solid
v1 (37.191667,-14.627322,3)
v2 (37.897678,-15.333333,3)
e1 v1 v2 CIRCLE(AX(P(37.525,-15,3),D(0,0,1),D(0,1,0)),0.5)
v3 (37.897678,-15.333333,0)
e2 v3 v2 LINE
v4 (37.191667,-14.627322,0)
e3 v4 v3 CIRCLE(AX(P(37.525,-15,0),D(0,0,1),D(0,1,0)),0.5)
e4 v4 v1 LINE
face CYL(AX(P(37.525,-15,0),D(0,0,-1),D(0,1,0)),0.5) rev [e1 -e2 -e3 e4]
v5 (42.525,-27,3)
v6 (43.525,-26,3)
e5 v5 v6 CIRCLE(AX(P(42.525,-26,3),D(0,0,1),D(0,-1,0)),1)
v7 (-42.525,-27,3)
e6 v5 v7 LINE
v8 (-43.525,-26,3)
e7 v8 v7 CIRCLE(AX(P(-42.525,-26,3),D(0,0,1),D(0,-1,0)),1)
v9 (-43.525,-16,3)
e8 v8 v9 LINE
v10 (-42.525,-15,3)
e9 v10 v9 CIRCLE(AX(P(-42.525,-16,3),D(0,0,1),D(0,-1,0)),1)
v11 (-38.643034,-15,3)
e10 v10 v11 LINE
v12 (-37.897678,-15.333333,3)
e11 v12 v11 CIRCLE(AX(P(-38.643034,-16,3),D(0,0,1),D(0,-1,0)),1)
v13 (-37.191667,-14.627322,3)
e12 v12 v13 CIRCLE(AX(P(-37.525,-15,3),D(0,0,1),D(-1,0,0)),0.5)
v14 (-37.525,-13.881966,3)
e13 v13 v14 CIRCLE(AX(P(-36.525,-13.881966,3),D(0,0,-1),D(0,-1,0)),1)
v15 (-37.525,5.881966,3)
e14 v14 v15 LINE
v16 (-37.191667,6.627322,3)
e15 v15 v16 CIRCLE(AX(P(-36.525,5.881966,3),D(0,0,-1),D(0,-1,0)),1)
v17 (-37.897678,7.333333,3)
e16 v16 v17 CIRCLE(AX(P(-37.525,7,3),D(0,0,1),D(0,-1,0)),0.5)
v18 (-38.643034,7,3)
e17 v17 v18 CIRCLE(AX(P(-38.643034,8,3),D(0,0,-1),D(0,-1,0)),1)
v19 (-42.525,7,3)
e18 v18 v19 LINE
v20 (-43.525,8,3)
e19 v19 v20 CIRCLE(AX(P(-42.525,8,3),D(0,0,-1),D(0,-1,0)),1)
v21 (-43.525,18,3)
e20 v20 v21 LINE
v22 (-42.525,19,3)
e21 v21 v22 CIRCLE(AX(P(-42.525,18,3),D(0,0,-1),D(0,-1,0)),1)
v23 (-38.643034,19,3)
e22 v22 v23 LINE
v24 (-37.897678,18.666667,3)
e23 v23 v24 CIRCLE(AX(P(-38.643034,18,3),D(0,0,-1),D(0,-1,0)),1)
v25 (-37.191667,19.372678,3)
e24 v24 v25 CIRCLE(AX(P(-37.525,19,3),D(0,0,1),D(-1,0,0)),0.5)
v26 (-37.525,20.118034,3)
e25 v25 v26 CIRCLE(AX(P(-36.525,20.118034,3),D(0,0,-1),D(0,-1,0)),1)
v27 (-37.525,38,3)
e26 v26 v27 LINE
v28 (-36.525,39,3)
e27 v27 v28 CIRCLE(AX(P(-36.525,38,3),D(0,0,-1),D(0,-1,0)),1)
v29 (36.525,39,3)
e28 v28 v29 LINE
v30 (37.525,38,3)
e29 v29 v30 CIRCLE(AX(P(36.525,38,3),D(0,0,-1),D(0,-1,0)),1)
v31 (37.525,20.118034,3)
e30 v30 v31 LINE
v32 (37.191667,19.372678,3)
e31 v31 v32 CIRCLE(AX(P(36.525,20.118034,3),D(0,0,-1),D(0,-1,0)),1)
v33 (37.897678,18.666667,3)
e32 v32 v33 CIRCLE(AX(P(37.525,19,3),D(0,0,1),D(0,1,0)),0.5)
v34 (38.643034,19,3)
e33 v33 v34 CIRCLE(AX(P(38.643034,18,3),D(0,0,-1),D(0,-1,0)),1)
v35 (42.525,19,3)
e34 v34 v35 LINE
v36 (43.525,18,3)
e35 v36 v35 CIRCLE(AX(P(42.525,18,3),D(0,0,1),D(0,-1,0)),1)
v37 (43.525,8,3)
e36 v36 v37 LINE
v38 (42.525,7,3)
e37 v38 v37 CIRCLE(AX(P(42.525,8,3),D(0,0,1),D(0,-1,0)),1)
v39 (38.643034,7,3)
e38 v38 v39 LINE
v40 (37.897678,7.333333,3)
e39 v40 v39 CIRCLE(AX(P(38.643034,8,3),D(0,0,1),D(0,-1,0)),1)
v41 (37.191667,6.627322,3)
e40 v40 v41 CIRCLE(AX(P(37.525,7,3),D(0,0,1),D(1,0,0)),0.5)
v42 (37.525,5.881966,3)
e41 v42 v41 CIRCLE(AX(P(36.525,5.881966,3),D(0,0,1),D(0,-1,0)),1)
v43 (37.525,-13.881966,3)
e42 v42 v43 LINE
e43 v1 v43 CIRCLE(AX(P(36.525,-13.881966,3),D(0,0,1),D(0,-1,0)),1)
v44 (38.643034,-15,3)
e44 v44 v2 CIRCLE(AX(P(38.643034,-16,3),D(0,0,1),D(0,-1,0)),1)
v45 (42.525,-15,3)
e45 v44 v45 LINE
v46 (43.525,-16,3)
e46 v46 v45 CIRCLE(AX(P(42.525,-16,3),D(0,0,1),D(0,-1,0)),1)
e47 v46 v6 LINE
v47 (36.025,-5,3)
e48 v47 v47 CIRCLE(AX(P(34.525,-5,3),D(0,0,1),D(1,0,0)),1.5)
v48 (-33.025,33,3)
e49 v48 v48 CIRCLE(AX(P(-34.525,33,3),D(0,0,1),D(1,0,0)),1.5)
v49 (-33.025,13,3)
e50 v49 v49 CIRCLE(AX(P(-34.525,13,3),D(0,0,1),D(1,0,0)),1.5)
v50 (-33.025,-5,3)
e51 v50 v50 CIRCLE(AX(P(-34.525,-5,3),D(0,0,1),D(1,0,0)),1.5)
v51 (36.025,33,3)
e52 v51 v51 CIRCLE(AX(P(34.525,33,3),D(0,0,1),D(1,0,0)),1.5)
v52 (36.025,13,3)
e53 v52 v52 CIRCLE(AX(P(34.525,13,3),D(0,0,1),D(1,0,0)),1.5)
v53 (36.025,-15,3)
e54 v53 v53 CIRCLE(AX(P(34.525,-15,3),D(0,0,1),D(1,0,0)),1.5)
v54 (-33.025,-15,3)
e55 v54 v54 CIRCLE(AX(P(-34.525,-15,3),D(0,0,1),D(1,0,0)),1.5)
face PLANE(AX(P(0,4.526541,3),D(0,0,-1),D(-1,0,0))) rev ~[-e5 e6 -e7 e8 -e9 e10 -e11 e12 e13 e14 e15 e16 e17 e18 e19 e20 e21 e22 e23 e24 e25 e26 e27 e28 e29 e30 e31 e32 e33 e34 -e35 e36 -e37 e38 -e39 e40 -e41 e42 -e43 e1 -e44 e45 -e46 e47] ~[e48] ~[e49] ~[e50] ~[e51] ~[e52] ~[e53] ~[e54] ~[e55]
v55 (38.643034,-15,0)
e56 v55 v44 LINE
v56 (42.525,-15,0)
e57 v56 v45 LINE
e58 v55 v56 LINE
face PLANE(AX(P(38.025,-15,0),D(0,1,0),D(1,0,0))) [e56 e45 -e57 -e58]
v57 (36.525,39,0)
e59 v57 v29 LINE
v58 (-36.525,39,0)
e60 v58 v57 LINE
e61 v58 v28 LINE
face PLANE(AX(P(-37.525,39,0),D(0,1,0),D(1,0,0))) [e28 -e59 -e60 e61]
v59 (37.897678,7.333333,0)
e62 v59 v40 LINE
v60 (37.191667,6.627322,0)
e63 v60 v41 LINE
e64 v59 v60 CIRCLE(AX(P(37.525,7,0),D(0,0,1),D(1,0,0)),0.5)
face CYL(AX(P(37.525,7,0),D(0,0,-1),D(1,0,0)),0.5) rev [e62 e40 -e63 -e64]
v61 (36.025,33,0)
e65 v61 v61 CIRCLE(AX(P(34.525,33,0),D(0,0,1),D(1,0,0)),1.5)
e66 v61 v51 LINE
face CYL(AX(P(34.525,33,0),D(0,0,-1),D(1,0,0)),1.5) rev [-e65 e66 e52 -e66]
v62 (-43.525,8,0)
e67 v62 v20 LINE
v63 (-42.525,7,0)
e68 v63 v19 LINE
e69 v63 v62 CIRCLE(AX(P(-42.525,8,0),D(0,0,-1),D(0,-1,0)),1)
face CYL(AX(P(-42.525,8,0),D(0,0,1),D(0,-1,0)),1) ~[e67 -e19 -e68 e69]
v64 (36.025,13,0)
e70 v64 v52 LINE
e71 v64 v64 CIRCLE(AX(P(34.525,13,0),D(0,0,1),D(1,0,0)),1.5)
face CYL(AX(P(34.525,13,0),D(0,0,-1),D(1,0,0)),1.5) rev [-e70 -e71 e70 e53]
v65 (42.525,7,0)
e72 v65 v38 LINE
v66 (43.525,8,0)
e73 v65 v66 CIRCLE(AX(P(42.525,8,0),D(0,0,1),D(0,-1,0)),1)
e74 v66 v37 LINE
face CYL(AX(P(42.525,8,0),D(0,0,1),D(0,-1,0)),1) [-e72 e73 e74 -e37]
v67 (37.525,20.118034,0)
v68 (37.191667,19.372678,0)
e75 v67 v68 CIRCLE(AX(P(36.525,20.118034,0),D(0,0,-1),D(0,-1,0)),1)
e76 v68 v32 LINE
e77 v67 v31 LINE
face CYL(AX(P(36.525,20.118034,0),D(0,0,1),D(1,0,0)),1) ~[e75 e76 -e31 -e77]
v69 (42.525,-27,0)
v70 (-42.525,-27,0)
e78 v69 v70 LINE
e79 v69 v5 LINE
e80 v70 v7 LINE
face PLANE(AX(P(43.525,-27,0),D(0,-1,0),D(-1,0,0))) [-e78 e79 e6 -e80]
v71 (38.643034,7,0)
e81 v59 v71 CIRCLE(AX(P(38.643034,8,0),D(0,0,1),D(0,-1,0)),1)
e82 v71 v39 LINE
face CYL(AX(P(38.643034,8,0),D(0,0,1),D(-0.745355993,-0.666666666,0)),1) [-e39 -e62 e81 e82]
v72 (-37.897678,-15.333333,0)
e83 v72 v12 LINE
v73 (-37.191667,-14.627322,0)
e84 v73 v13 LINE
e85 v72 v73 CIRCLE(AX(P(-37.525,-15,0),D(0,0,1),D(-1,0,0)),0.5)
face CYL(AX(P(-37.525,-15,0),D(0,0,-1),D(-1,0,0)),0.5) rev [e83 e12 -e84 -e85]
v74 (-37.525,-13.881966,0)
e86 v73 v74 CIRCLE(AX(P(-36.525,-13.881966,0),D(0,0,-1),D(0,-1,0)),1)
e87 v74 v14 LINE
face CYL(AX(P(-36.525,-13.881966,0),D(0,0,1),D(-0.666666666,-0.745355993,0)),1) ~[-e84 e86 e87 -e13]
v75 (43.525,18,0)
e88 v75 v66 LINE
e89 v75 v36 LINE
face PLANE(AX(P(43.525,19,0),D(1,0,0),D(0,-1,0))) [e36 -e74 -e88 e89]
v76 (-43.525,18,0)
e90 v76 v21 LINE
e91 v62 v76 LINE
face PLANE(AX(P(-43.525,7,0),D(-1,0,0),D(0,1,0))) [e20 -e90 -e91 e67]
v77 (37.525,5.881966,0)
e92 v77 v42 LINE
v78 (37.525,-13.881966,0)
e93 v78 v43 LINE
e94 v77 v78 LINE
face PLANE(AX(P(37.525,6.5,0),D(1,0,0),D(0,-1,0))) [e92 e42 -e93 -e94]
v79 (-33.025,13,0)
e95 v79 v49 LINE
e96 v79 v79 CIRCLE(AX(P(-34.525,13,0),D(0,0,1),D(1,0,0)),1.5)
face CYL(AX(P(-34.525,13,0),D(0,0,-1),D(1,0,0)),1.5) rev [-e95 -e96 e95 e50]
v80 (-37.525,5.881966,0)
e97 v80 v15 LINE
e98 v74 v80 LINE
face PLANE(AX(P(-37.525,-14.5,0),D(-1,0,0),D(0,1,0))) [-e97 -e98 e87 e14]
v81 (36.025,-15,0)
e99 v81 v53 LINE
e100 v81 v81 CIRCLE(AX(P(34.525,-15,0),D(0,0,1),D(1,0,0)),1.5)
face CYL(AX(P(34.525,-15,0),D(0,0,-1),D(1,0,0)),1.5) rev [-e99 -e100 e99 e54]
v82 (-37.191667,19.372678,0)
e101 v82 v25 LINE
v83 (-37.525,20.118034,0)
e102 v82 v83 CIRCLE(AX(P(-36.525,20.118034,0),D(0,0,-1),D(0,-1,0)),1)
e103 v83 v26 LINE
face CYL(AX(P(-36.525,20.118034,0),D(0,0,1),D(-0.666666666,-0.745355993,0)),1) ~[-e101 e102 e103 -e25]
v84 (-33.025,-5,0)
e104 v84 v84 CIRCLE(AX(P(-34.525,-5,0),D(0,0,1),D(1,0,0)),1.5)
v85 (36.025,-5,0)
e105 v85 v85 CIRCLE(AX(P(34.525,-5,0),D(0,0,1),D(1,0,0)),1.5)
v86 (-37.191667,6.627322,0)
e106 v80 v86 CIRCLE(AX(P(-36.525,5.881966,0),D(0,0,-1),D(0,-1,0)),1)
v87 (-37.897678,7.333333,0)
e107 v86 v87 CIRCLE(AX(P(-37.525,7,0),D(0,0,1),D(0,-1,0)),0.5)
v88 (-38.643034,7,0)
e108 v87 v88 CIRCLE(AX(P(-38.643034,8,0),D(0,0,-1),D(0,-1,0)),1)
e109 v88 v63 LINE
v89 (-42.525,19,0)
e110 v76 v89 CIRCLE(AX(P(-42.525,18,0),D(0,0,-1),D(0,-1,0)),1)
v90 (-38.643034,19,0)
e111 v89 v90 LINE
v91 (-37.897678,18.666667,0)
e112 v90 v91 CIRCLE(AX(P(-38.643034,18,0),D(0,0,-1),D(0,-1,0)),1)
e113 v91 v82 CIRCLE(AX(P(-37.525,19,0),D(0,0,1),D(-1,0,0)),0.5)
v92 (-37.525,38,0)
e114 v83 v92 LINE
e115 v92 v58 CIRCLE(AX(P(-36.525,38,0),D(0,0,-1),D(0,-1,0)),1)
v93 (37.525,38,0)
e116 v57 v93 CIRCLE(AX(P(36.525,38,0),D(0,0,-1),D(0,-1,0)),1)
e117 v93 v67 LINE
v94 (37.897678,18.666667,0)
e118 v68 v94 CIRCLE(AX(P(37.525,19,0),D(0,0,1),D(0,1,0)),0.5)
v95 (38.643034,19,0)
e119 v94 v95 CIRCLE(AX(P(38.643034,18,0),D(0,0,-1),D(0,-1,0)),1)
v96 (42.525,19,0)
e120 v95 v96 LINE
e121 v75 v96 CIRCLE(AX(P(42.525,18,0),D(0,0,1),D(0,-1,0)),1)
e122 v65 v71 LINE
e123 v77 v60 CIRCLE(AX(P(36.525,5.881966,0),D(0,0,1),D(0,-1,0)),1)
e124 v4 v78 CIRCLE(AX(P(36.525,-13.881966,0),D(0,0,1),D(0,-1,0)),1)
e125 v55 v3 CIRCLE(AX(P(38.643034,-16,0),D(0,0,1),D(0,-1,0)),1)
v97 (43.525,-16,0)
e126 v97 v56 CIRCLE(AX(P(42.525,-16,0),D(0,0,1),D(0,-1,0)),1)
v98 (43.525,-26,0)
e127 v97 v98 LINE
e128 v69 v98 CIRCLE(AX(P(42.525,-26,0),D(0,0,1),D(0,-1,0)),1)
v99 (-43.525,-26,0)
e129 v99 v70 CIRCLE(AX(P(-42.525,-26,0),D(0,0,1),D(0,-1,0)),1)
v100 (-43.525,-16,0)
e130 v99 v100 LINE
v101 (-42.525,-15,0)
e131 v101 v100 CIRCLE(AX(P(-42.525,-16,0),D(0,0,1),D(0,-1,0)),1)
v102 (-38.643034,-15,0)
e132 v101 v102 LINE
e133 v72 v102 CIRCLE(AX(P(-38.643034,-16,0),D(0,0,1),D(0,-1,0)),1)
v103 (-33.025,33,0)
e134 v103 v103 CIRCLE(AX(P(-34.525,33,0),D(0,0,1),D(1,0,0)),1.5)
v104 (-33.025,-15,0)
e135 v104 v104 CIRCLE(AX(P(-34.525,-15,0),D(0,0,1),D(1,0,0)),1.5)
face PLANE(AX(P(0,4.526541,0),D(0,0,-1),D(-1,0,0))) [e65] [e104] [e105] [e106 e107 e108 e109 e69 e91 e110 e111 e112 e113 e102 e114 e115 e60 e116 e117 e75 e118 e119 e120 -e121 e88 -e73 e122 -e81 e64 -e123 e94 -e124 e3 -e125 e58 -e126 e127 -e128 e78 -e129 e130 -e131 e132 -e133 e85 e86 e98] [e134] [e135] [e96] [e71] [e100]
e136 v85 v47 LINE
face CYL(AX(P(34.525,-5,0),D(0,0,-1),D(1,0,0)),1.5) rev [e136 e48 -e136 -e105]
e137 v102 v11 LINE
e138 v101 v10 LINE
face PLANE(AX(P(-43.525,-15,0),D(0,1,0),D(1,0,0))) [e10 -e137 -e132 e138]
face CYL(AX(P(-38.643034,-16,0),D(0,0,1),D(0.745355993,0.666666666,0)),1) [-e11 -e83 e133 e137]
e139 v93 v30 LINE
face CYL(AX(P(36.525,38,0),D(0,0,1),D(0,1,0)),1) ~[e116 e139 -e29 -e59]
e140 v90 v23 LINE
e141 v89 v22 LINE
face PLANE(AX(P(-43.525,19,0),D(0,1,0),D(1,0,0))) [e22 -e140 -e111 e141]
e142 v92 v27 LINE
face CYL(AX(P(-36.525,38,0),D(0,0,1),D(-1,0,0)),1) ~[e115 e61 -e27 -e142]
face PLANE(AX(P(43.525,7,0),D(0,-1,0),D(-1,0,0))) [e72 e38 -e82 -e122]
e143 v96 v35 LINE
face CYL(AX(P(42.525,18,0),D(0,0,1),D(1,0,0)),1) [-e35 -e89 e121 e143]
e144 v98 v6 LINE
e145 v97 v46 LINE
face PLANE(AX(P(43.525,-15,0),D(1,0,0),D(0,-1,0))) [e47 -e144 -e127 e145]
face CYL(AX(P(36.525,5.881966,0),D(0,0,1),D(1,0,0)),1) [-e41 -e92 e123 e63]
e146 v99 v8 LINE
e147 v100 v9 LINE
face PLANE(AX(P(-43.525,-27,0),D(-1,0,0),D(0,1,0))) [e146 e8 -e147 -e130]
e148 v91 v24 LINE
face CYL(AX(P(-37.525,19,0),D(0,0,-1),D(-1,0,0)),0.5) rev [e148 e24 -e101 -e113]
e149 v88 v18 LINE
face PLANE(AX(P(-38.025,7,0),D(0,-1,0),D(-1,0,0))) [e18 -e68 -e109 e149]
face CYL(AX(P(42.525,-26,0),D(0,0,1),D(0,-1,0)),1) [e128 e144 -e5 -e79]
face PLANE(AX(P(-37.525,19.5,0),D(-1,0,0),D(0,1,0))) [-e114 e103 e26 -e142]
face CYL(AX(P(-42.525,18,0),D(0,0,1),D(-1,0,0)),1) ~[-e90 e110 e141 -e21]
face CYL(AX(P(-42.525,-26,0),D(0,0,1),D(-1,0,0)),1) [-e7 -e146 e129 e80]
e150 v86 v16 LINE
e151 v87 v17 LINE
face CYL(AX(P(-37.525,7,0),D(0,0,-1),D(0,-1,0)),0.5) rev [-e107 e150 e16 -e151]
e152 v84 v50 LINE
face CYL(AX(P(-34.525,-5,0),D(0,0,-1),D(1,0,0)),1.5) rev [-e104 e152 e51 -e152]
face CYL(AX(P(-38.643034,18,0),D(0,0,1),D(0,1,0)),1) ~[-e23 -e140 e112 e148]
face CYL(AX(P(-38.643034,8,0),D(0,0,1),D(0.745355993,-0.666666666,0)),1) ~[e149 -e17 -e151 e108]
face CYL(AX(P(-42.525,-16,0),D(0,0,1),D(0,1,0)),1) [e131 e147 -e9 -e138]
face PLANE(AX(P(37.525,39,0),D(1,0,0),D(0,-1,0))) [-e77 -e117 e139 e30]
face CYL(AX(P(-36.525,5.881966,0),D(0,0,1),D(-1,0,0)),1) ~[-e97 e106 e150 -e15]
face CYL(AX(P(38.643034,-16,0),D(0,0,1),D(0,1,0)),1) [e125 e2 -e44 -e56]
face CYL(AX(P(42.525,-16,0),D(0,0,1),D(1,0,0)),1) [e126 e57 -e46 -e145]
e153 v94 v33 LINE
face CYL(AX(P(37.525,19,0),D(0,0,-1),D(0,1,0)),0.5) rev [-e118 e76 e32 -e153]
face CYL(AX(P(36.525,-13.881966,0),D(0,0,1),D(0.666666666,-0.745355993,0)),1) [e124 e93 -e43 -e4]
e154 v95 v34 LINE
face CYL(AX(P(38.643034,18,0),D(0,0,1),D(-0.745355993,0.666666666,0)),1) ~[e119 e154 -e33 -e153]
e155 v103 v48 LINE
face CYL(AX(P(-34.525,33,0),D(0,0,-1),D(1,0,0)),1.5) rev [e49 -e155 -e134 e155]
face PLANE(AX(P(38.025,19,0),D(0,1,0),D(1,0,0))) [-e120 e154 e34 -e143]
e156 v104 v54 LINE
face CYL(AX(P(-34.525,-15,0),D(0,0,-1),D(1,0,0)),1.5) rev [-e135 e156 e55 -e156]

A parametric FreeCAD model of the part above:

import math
import FreeCAD as App
import Part
import Sketcher
Q = App.Units.Quantity


def edges_at(feature, points):
    """Names of the edges that pass closest to the given points."""
    edges = feature.Shape.Edges
    near = lambda p: min(range(len(edges)), key=lambda i: edges[i].distToShape(Part.Vertex(*p))[0])
    return sorted({f"Edge{near(p) + 1}" for p in points})

doc = App.newDocument("Part")
body = doc.addObject("PartDesign::Body", "Body")

sketch1 = doc.addObject("Sketcher::SketchObject", "Sketch")
body.addObject(sketch1)
sketch1.AttachmentSupport = (doc.XY_Plane, [""])
sketch1.MapMode = "FlatFace"
sketch1.addGeometry([
    Part.ArcOfCircle(Part.Circle(App.Vector(-37.5, -15, 0), App.Vector(0, 0, 1), 0.5), math.radians(180), math.radians(450)),
    Part.LineSegment(App.Vector(-38, -15, 0), App.Vector(-43.5, -15, 0)),
    Part.LineSegment(App.Vector(-43.5, -15, 0), App.Vector(-43.5, -27, 0)),
    Part.LineSegment(App.Vector(-43.5, -27, 0), App.Vector(43.5, -27, 0)),
    Part.LineSegment(App.Vector(43.5, -27, 0), App.Vector(43.5, -15, 0)),
    Part.LineSegment(App.Vector(43.5, -15, 0), App.Vector(38, -15, 0)),
    Part.ArcOfCircle(Part.Circle(App.Vector(37.5, -15, 0), App.Vector(0, 0, 1), 0.5), math.radians(90), math.radians(360)),
    Part.LineSegment(App.Vector(37.5, -14.5, 0), App.Vector(37.5, 6.5, 0)),
    Part.ArcOfCircle(Part.Circle(App.Vector(37.5, 7, 0), App.Vector(0, 0, 1), 0.5), math.radians(0), math.radians(270)),
    Part.LineSegment(App.Vector(38, 7, 0), App.Vector(43.5, 7, 0)),
    Part.LineSegment(App.Vector(43.5, 7, 0), App.Vector(43.5, 19, 0)),
    Part.LineSegment(App.Vector(43.5, 19, 0), App.Vector(38, 19, 0)),
    Part.ArcOfCircle(Part.Circle(App.Vector(37.5, 19, 0), App.Vector(0, 0, 1), 0.5), math.radians(90), math.radians(360)),
    Part.LineSegment(App.Vector(37.5, 19.5, 0), App.Vector(37.5, 39, 0)),
    Part.LineSegment(App.Vector(37.5, 39, 0), App.Vector(-37.5, 39, 0)),
    Part.LineSegment(App.Vector(-37.5, 39, 0), App.Vector(-37.5, 19.5, 0)),
    Part.ArcOfCircle(Part.Circle(App.Vector(-37.5, 19, 0), App.Vector(0, 0, 1), 0.5), math.radians(180), math.radians(450)),
    Part.LineSegment(App.Vector(-38, 19, 0), App.Vector(-43.5, 19, 0)),
    Part.LineSegment(App.Vector(-43.5, 19, 0), App.Vector(-43.5, 7, 0)),
    Part.LineSegment(App.Vector(-43.5, 7, 0), App.Vector(-38, 7, 0)),
    Part.ArcOfCircle(Part.Circle(App.Vector(-37.5, 7, 0), App.Vector(0, 0, 1), 0.5), math.radians(-90), math.radians(180)),
    Part.LineSegment(App.Vector(-37.5, 6.5, 0), App.Vector(-37.5, -14.5, 0)),
    Part.Circle(App.Vector(34.5, -15, 0), App.Vector(0, 0, 1), 1.5),
    Part.Circle(App.Vector(34.5, -5, 0), App.Vector(0, 0, 1), 1.5),
    Part.Circle(App.Vector(-34.5, -15, 0), App.Vector(0, 0, 1), 1.5),
    Part.Circle(App.Vector(-34.5, -5, 0), App.Vector(0, 0, 1), 1.5),
    Part.Circle(App.Vector(34.5, 13, 0), App.Vector(0, 0, 1), 1.5),
    Part.Circle(App.Vector(34.5, 33, 0), App.Vector(0, 0, 1), 1.5),
    Part.Circle(App.Vector(-34.5, 13, 0), App.Vector(0, 0, 1), 1.5),
    Part.Circle(App.Vector(-34.5, 33, 0), App.Vector(0, 0, 1), 1.5),
], False)
sketch1.addConstraint([
    Sketcher.Constraint("Coincident", 0, 1, 1, 1),
    Sketcher.Constraint("Coincident", 1, 2, 2, 1),
    Sketcher.Constraint("Coincident", 2, 2, 3, 1),
    Sketcher.Constraint("Coincident", 3, 2, 4, 1),
    Sketcher.Constraint("Coincident", 4, 2, 5, 1),
    Sketcher.Constraint("Coincident", 5, 2, 6, 2),
    Sketcher.Constraint("Coincident", 6, 1, 7, 1),
    Sketcher.Constraint("Coincident", 7, 2, 8, 2),
    Sketcher.Constraint("Coincident", 8, 1, 9, 1),
    Sketcher.Constraint("Coincident", 9, 2, 10, 1),
    Sketcher.Constraint("Coincident", 10, 2, 11, 1),
    Sketcher.Constraint("Coincident", 11, 2, 12, 2),
    Sketcher.Constraint("Coincident", 12, 1, 13, 1),
    Sketcher.Constraint("Coincident", 13, 2, 14, 1),
    Sketcher.Constraint("Coincident", 14, 2, 15, 1),
    Sketcher.Constraint("Coincident", 15, 2, 16, 2),
    Sketcher.Constraint("Coincident", 16, 1, 17, 1),
    Sketcher.Constraint("Coincident", 17, 2, 18, 1),
    Sketcher.Constraint("Coincident", 18, 2, 19, 1),
    Sketcher.Constraint("Coincident", 19, 2, 20, 2),
    Sketcher.Constraint("Coincident", 20, 1, 21, 1),
    Sketcher.Constraint("Coincident", 21, 2, 0, 2),
    Sketcher.Constraint("Horizontal", 1),
    Sketcher.Constraint("Vertical", 2),
    Sketcher.Constraint("Horizontal", 3),
    Sketcher.Constraint("Vertical", 4),
    Sketcher.Constraint("Horizontal", 5),
    Sketcher.Constraint("Vertical", 7),
    Sketcher.Constraint("Horizontal", 9),
    Sketcher.Constraint("Vertical", 10),
    Sketcher.Constraint("Horizontal", 11),
    Sketcher.Constraint("Vertical", 13),
    Sketcher.Constraint("Horizontal", 14),
    Sketcher.Constraint("Vertical", 15),
    Sketcher.Constraint("Horizontal", 17),
    Sketcher.Constraint("Vertical", 18),
    Sketcher.Constraint("Horizontal", 19),
    Sketcher.Constraint("Vertical", 21),
    Sketcher.Constraint("Equal", 0, 6),
    Sketcher.Constraint("Equal", 6, 8),
    Sketcher.Constraint("Equal", 8, 12),
    Sketcher.Constraint("Equal", 12, 16),
    Sketcher.Constraint("Equal", 16, 20),
    Sketcher.Constraint("Equal", 22, 23),
    Sketcher.Constraint("Equal", 23, 24),
    Sketcher.Constraint("Equal", 24, 25),
    Sketcher.Constraint("Equal", 25, 26),
    Sketcher.Constraint("Equal", 26, 27),
    Sketcher.Constraint("Equal", 27, 28),
    Sketcher.Constraint("Equal", 28, 29),
    Sketcher.Constraint("Symmetric", 0, 3, 6, 3, -2),
    Sketcher.Constraint("Symmetric", 12, 3, 16, 3, -2),
    Sketcher.Constraint("Symmetric", 8, 3, 20, 3, -2),
    Sketcher.Constraint("Symmetric", 22, 3, 24, 3, -2),
    Sketcher.Constraint("Symmetric", 23, 3, 25, 3, -2),
    Sketcher.Constraint("Symmetric", 26, 3, 28, 3, -2),
    Sketcher.Constraint("Symmetric", 27, 3, 29, 3, -2),
    Sketcher.Constraint("Symmetric", 1, 2, 4, 2, -2),
    Sketcher.Constraint("Symmetric", 10, 2, 17, 2, -2),
    Sketcher.Constraint("Horizontal", 6, 3, 22, 3),
    Sketcher.Constraint("Horizontal", 24, 3, 0, 1),
    Sketcher.Constraint("Horizontal", 20, 3, 8, 1),
    Sketcher.Constraint("Horizontal", 16, 3, 10, 2),
    Sketcher.Constraint("Horizontal", 9, 2, 18, 2),
    Sketcher.Constraint("Vertical", 6, 3, 8, 3),
    Sketcher.Constraint("Vertical", 8, 3, 12, 3),
    Sketcher.Constraint("Vertical", 22, 3, 23, 3),
    Sketcher.Constraint("Vertical", 23, 3, 26, 3),
    Sketcher.Constraint("Vertical", 26, 3, 27, 3),
    Sketcher.Constraint("Vertical", 12, 3, 6, 1),
    Sketcher.Constraint("Vertical", 4, 2, 9, 2),
    Sketcher.Constraint("Vertical", 7, 2, 12, 1),
    Sketcher.Constraint("Vertical", 20, 3, 14, 2),
    Sketcher.Constraint("Vertical", 15, 2, 20, 1),
    Sketcher.Constraint("Equal", 4, 10),
    Sketcher.Constraint("Diameter", 22, Q("3 mm")),
    Sketcher.Constraint("Radius", 0, Q("0.5 mm")),
    Sketcher.Constraint("DistanceY", 2, 2, 2, 1, Q("12 mm")),
    Sketcher.Constraint("DistanceY", 7, 1, 7, 2, Q("21 mm")),
    Sketcher.Constraint("DistanceX", 1, 2, 1, 1, Q("5.5 mm")),
    Sketcher.Constraint("DistanceY", 13, 1, 13, 2, Q("19.5 mm")),
    Sketcher.Constraint("DistanceY", 0, 3, -1, 1, Q("15 mm")),
    Sketcher.Constraint("DistanceY", 23, 3, -1, 1, Q("5 mm")),
    Sketcher.Constraint("DistanceY", -1, 1, 26, 3, Q("13 mm")),
    Sketcher.Constraint("DistanceY", -1, 1, 27, 3, Q("33 mm")),
    Sketcher.Constraint("DistanceX", 22, 3, 6, 3, Q("3 mm")),
    Sketcher.Constraint("DistanceX", 3, 1, 3, 2, Q("87.05 mm")),
])
pad1 = doc.addObject("PartDesign::Pad", "Pad")
body.addObject(pad1)
pad1.Profile = sketch1
pad1.Length = 3
doc.recompute()

fillet = doc.addObject("PartDesign::Fillet", "Fillet")
body.addObject(fillet)
fillet.Base = (pad1, edges_at(pad1, [
    (-37.525, -14.5, 1.5),
    (-37.525, 6.5, 1.5),
    (-38.025, 7, 1.5),
    (-43.525, 7, 1.5),
    (-43.525, 19, 1.5),
    (-38.025, 19, 1.5),
    (-37.525, 19.5, 1.5),
    (-37.525, 39, 1.5),
    (37.525, 39, 1.5),
    (37.525, 19.5, 1.5),
    (38.025, 19, 1.5),
    (43.525, 19, 1.5),
    (43.525, 7, 1.5),
    (38.025, 7, 1.5),
    (37.525, 6.5, 1.5),
    (37.525, -14.5, 1.5),
    (38.025, -15, 1.5),
    (43.525, -15, 1.5),
    (43.525, -27, 1.5),
    (-43.525, -27, 1.5),
    (-43.525, -15, 1.5),
    (-38.025, -15, 1.5),
]))
fillet.Radius = 1

doc.recompute()
